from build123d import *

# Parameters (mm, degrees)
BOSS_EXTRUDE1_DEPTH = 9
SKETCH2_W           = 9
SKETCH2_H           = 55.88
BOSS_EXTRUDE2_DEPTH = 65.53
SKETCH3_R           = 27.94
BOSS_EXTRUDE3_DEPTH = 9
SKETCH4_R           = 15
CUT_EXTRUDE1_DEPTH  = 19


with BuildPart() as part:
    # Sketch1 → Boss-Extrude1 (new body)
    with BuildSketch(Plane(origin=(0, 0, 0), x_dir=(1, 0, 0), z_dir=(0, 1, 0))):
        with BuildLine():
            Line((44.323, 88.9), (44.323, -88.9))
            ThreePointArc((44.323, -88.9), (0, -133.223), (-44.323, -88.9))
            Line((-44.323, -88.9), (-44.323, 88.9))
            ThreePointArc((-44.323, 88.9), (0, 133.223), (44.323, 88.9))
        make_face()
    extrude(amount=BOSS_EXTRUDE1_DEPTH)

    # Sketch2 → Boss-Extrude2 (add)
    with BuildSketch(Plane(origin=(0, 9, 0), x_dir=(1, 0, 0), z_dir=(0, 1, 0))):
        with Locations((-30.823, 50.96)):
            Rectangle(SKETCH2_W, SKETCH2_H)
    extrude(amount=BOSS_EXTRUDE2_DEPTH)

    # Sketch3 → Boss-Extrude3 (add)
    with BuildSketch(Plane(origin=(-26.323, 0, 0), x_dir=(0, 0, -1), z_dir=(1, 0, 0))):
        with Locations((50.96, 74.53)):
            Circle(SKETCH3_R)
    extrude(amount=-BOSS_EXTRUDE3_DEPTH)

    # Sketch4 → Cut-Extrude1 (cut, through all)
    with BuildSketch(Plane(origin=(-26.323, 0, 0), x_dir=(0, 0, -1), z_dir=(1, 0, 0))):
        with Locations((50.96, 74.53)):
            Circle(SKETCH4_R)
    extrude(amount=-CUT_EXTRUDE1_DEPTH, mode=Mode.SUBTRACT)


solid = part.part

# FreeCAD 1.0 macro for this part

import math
import FreeCAD as App
import Part
import Sketcher
from FreeCAD import Vector

doc = App.newDocument("Part")
body = doc.addObject("PartDesign::Body", "Body")

# Sketch on XZ plane
sketch1 = body.newObject("Sketcher::SketchObject", "Sketch")
sketch1.AttachmentSupport = (doc.getObject("XZ_Plane"), [""])
sketch1.MapMode = "FlatFace"
sketch1.addGeometry(Part.LineSegment(Vector(44, 89, 0), Vector(44, -89, 0)), False)
sketch1.addGeometry(Part.ArcOfCircle(Part.Circle(Vector(0, -89, 0), Vector(0, 0, 1), 44), math.radians(180), math.radians(360)), False)
sketch1.addGeometry(Part.LineSegment(Vector(-44, -89, 0), Vector(-44, 89, 0)), False)
sketch1.addGeometry(Part.ArcOfCircle(Part.Circle(Vector(0, 89, 0), Vector(0, 0, 1), 44), math.radians(0), math.radians(180)), False)
sketch1.addConstraint(Sketcher.Constraint("Tangent", 0, 2, 1, 2))
sketch1.addConstraint(Sketcher.Constraint("Tangent", 1, 1, 2, 1))
sketch1.addConstraint(Sketcher.Constraint("Tangent", 2, 2, 3, 2))
sketch1.addConstraint(Sketcher.Constraint("Tangent", 3, 1, 0, 1))
sketch1.addConstraint(Sketcher.Constraint("Vertical", 0))
sketch1.addConstraint(Sketcher.Constraint("Vertical", 2))
sketch1.addConstraint(Sketcher.Constraint("Symmetric", 1, 3, 3, 3, -1, 1))
sketch1.addConstraint(Sketcher.Constraint("DistanceY", 0, 2, 0, 1, 177.8))
sketch1.addConstraint(Sketcher.Constraint("Radius", 1, 44.323))
pad1 = body.newObject("PartDesign::Pad", "Pad")
pad1.Profile = sketch1
pad1.Length = 9
pad1.Reversed = True

# Sketch on XZ plane
sketch2 = body.newObject("Sketcher::SketchObject", "Sketch001")
sketch2.AttachmentSupport = (doc.getObject("XZ_Plane"), [""])
sketch2.MapMode = "FlatFace"
sketch2.AttachmentOffset = App.Placement(Vector(0, 0, -9), App.Rotation())
sketch2.addGeometry(Part.LineSegment(Vector(-35, -79, 0), Vector(-35, -23, 0)), False)
sketch2.addGeometry(Part.LineSegment(Vector(-35, -23, 0), Vector(-26, -23, 0)), False)
sketch2.addGeometry(Part.LineSegment(Vector(-26, -23, 0), Vector(-26, -79, 0)), False)
sketch2.addGeometry(Part.LineSegment(Vector(-26, -79, 0), Vector(-35, -79, 0)), False)
sketch2.addConstraint(Sketcher.Constraint("Coincident", 0, 2, 1, 1))
sketch2.addConstraint(Sketcher.Constraint("Coincident", 1, 2, 2, 1))
sketch2.addConstraint(Sketcher.Constraint("Coincident", 2, 2, 3, 1))
sketch2.addConstraint(Sketcher.Constraint("Coincident", 3, 2, 0, 1))
sketch2.addConstraint(Sketcher.Constraint("Vertical", 0))
sketch2.addConstraint(Sketcher.Constraint("Horizontal", 1))
sketch2.addConstraint(Sketcher.Constraint("Vertical", 2))
sketch2.addConstraint(Sketcher.Constraint("Horizontal", 3))
sketch2.addConstraint(Sketcher.Constraint("DistanceX", 1, 1, 1, 2, 9.0))
sketch2.addConstraint(Sketcher.Constraint("DistanceY", 0, 1, 0, 2, 55.88))
sketch2.addConstraint(Sketcher.Constraint("DistanceY", 2, 2, -1, 1, 78.9))
sketch2.addConstraint(Sketcher.Constraint("DistanceX", 0, 2, -1, 1, 35.323))
pad2 = body.newObject("PartDesign::Pad", "Pad001")
pad2.Profile = sketch2
pad2.Length = 65.53
pad2.Reversed = True

# Sketch on YZ plane
sketch3 = body.newObject("Sketcher::SketchObject", "Sketch002")
sketch3.AttachmentSupport = (doc.getObject("YZ_Plane"), [""])
sketch3.MapMode = "FlatFace"
sketch3.AttachmentOffset = App.Placement(Vector(0, 0, -26.323), App.Rotation())
sketch3.addGeometry(Part.Circle(Vector(75, -51, 0), Vector(0, 0, 1), 28), False)
sketch3.addConstraint(Sketcher.Constraint("Diameter", 0, 55.88))
sketch3.addConstraint(Sketcher.Constraint("DistanceX", -1, 1, 0, 3, 74.53))
sketch3.addConstraint(Sketcher.Constraint("DistanceY", 0, 3, -1, 1, 50.96))
pad3 = body.newObject("PartDesign::Pad", "Pad002")
pad3.Profile = sketch3
pad3.Length = 9
pad3.Reversed = True

# Sketch on YZ plane
sketch4 = body.newObject("Sketcher::SketchObject", "Sketch003")
sketch4.AttachmentSupport = (doc.getObject("YZ_Plane"), [""])
sketch4.MapMode = "FlatFace"
sketch4.AttachmentOffset = App.Placement(Vector(0, 0, -26.323), App.Rotation())
sketch4.addGeometry(Part.Circle(Vector(75, -51, 0), Vector(0, 0, 1), 15), False)
sketch4.addConstraint(Sketcher.Constraint("Diameter", 0, 30.0))
sketch4.addConstraint(Sketcher.Constraint("DistanceX", -1, 1, 0, 3, 74.53))
sketch4.addConstraint(Sketcher.Constraint("DistanceY", 0, 3, -1, 1, 50.96))
pocket1 = body.newObject("PartDesign::Pocket", "Pocket")
pocket1.Profile = sketch4
pocket1.Type = "ThroughAll"

doc.recompute()
